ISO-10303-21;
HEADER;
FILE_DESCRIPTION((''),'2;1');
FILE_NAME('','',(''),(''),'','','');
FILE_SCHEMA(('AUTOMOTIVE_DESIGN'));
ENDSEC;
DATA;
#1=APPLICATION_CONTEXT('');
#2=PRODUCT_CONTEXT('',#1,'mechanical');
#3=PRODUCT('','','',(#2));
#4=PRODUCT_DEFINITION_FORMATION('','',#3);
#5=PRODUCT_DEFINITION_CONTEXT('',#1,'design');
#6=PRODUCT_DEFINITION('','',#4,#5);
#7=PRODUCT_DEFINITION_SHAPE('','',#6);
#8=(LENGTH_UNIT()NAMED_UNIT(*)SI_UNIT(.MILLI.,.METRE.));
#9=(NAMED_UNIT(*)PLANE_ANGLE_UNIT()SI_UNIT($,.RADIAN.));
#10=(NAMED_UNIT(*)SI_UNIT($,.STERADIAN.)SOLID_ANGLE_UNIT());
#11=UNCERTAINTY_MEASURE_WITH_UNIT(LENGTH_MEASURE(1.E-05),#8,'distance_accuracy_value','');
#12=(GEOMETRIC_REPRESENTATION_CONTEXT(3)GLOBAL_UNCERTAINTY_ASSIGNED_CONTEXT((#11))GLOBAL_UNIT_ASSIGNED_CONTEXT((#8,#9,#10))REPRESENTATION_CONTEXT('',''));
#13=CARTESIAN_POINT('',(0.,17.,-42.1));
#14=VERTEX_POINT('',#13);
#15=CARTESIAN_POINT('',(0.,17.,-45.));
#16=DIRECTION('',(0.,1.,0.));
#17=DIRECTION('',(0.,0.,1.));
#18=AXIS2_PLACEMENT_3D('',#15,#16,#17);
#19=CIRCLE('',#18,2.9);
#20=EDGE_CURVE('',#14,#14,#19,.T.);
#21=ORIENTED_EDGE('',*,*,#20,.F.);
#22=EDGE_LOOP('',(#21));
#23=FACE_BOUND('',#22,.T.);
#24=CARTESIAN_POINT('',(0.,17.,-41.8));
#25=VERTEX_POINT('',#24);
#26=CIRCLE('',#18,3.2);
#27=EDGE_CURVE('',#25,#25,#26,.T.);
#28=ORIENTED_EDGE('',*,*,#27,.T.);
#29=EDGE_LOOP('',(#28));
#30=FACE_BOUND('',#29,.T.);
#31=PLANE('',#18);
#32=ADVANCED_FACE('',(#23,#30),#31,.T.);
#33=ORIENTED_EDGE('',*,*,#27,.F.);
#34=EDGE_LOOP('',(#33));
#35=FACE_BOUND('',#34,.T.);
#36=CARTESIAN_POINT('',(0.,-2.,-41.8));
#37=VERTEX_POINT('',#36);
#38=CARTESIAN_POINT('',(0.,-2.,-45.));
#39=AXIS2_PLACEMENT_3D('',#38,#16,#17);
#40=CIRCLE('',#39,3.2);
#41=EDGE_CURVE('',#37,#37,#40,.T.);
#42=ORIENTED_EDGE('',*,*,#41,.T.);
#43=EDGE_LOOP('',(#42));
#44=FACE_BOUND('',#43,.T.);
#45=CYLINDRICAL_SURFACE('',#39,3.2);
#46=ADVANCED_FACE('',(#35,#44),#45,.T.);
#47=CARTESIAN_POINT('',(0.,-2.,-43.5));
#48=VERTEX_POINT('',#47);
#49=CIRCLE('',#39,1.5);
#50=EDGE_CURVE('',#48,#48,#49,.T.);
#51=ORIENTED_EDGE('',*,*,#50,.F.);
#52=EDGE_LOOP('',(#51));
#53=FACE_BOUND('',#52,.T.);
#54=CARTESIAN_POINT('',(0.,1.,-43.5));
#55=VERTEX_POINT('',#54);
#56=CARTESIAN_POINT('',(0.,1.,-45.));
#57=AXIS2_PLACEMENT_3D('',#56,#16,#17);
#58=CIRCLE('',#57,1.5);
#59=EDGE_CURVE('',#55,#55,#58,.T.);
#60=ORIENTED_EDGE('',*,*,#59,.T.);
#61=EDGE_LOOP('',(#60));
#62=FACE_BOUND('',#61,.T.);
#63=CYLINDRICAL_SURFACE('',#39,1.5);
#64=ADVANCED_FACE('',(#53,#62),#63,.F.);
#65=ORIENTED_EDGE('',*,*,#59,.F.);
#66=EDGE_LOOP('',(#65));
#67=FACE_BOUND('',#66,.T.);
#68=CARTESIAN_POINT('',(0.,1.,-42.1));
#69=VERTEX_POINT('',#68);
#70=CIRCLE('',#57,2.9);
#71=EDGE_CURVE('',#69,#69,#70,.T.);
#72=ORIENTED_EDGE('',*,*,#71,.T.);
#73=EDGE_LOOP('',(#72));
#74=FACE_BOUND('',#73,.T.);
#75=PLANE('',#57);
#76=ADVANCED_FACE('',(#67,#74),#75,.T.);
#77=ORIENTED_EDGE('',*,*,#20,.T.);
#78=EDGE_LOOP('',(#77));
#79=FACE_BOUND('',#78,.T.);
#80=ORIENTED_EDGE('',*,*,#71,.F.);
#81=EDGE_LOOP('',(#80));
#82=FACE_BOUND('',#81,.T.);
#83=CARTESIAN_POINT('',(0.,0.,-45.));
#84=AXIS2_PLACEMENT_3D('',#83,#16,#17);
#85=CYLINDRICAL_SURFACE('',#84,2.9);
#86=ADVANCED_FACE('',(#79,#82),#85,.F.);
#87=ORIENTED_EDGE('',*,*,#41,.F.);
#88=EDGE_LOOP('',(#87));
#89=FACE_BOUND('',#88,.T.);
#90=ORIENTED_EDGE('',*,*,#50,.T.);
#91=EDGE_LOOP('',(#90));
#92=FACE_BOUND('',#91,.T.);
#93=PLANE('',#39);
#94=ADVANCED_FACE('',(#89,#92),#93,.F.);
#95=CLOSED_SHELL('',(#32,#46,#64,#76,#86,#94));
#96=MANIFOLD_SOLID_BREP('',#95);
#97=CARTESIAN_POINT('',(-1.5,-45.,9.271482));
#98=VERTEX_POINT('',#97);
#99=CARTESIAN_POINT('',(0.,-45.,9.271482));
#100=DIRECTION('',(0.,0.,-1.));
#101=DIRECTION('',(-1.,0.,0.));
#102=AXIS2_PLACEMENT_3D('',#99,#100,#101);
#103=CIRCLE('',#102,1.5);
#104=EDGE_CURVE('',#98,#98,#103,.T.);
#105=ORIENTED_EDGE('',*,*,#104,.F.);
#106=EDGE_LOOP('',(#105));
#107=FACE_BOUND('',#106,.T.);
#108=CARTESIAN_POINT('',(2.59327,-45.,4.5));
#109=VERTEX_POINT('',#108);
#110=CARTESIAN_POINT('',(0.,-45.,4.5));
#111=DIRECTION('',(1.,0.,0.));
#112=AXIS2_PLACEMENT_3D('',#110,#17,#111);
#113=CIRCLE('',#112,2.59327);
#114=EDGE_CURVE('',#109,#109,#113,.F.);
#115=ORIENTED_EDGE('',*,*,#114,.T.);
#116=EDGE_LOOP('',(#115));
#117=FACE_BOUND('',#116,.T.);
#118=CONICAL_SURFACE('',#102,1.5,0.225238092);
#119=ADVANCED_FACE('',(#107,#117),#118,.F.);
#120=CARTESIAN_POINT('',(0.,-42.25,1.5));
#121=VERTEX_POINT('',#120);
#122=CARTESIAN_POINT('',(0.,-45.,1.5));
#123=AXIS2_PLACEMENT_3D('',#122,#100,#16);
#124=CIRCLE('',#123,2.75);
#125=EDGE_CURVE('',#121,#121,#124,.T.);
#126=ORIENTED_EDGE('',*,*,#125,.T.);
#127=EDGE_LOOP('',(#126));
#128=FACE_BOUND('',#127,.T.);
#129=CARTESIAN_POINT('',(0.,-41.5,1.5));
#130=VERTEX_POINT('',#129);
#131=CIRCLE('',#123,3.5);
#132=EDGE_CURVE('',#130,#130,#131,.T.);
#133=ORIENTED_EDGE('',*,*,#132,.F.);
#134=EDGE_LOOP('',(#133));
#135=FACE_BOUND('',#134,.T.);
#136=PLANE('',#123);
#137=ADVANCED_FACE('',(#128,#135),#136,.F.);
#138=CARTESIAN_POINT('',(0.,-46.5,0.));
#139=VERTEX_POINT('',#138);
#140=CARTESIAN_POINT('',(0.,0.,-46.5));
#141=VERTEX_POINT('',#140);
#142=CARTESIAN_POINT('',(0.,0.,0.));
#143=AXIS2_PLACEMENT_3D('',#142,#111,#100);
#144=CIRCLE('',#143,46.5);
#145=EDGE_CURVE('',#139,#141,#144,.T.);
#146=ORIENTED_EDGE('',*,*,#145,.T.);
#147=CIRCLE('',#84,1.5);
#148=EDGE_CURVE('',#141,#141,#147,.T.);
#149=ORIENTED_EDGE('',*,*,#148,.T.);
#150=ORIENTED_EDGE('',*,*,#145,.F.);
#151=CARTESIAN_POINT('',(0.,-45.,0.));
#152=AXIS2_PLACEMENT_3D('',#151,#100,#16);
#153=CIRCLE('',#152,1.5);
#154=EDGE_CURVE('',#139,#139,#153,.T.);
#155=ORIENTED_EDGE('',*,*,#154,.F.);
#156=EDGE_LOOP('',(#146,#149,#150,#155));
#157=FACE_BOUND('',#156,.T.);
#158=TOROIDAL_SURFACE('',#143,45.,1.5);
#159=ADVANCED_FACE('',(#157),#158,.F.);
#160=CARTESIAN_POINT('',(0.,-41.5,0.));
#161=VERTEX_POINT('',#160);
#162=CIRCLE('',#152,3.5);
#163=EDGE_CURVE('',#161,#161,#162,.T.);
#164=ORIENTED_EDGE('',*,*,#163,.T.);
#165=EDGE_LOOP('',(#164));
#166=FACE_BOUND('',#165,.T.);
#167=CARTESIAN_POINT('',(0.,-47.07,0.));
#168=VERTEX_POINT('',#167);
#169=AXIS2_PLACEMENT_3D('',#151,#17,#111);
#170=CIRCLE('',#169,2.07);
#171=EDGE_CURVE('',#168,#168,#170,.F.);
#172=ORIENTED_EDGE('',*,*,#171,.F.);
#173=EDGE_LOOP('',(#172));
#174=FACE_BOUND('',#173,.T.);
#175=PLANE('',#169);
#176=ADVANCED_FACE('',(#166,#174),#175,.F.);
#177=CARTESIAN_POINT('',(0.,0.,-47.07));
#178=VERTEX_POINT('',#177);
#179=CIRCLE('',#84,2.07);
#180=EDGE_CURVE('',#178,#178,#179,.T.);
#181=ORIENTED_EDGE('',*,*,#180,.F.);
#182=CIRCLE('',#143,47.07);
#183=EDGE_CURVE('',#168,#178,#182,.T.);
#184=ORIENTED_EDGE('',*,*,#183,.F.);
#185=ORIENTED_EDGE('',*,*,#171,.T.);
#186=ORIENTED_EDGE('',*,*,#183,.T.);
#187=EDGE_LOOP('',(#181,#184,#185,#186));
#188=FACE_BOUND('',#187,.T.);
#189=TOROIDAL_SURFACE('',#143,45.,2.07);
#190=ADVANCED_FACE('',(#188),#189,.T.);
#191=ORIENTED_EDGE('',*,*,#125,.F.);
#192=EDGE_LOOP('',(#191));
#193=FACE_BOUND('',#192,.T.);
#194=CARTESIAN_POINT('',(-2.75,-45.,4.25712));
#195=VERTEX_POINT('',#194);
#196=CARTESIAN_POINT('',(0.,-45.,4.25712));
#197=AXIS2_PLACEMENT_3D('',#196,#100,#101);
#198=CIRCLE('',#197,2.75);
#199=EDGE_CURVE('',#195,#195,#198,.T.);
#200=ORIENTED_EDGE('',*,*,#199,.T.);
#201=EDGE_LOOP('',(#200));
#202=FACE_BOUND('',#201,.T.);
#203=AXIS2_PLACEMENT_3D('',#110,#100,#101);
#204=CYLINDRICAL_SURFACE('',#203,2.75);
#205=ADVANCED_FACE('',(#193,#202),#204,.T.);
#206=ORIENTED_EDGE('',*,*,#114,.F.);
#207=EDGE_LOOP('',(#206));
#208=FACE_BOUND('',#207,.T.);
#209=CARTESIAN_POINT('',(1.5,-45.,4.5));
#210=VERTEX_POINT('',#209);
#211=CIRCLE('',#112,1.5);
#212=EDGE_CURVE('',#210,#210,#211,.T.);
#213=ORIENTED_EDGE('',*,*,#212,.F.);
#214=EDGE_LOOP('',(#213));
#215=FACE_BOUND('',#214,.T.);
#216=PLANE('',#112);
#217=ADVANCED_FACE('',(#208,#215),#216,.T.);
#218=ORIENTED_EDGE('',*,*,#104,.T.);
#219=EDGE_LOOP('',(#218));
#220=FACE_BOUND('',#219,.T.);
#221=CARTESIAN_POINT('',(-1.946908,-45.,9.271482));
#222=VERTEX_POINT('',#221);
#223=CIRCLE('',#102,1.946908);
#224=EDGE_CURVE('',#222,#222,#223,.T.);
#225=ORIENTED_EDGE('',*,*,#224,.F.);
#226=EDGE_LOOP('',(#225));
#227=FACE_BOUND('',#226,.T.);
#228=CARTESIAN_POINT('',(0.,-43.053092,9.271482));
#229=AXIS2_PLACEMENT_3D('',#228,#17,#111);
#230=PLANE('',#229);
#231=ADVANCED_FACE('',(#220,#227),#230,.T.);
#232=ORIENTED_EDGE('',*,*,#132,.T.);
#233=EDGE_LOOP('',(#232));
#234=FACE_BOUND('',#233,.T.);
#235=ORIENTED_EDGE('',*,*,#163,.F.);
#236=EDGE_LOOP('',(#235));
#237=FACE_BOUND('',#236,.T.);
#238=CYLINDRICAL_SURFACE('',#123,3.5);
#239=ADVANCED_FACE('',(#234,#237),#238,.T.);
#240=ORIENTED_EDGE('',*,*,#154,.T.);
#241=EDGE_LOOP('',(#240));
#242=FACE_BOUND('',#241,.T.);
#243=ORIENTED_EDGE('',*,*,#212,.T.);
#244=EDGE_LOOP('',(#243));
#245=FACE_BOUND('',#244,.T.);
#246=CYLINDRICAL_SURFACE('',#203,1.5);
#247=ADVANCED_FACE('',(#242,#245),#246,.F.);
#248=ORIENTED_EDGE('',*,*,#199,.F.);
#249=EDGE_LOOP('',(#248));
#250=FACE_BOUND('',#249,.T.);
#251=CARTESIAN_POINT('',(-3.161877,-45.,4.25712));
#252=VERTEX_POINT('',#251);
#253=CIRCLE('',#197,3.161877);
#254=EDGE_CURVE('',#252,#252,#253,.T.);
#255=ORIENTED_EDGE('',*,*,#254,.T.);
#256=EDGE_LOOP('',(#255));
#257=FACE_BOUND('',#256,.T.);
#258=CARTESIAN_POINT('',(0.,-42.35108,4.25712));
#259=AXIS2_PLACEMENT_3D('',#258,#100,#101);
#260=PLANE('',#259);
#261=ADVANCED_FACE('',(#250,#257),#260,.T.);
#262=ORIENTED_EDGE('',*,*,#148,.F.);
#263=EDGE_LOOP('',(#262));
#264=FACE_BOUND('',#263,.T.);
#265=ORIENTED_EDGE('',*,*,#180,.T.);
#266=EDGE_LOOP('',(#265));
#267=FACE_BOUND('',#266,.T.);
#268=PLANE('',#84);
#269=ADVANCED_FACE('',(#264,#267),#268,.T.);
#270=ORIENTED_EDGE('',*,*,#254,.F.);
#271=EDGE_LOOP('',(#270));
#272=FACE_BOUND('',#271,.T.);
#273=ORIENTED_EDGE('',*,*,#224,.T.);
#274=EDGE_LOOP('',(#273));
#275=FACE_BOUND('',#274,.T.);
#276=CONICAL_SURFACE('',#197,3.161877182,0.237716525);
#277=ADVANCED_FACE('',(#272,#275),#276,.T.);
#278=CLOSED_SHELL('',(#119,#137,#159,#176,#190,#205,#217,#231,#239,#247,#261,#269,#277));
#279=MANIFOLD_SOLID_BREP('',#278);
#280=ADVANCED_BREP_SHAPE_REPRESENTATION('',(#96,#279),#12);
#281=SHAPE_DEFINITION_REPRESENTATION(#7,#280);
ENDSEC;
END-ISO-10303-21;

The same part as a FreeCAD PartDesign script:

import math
import FreeCAD as App
import Part
import Sketcher
from FreeCAD import Vector
Q = App.Units.Quantity


def add_polygon(sketch, points):
    """Adds a closed chain of lines whose ends are joined by coincident constraints."""
    first, n = sketch.GeometryCount, len(points)
    for a, b in zip(points, points[1:] + points[:1]):
        sketch.addGeometry(Part.LineSegment(App.Vector(*a, 0), App.Vector(*b, 0)), False)
    for i in range(n):
        sketch.addConstraint(Sketcher.Constraint("Coincident", first + i, 2, first + (i + 1) % n, 1))

doc = App.newDocument("Part")
body = doc.addObject("PartDesign::Body", "Body")

# Sketch on XY plane
sketch1 = body.newObject("Sketcher::SketchObject", "Sketch")
sketch1.AttachmentSupport = (doc.getObject("XY_Plane"), [""])
sketch1.MapMode = "FlatFace"
sketch1.addGeometry(Part.Circle(Vector(0, -45, 0), Vector(0, 0, 1), 2.1), False)
sketch1.addGeometry(Part.Circle(Vector(0, -45, 0), Vector(0, 0, 1), 1.5), False)
sketch1.addConstraint(Sketcher.Constraint("Coincident", 1, 3, 0, 3))
sketch1.addConstraint(Sketcher.Constraint("PointOnObject", 0, 3, -2))
sketch1.addConstraint(Sketcher.Constraint("Diameter", 1, Q("3 mm")))
sketch1.addConstraint(Sketcher.Constraint("Diameter", 0, Q("4.14 mm")))
sketch1.addConstraint(Sketcher.Constraint("DistanceY", 0, 3, -1, 1, Q("45 mm")))

# Sketch on YZ plane
sketch2 = body.newObject("Sketcher::SketchObject", "Sketch001")
sketch2.AttachmentSupport = (doc.getObject("YZ_Plane"), [""])
sketch2.MapMode = "FlatFace"
sketch2.addGeometry(Part.ArcOfCircle(Part.Circle(Vector(0, 0, 0), Vector(0, 0, 1), 45), math.radians(-180), math.radians(-90)), False)
sketch2.addConstraint(Sketcher.Constraint("Coincident", 0, 3, -1, 1))
sketch2.addConstraint(Sketcher.Constraint("PointOnObject", 0, 1, -1))
sketch2.addConstraint(Sketcher.Constraint("PointOnObject", 0, 2, -2))
sketch2.addConstraint(Sketcher.Constraint("Radius", 0, Q("45 mm")))
doc.recompute()

additivepipe = body.newObject("PartDesign::AdditivePipe", "AdditivePipe")
additivepipe.Profile = sketch1
additivepipe.Spine = (sketch2, ["Edge1"])

# Sketch on XY plane
sketch3 = body.newObject("Sketcher::SketchObject", "Sketch002")
sketch3.AttachmentSupport = (doc.getObject("XY_Plane"), [""])
sketch3.MapMode = "FlatFace"
sketch3.addGeometry(Part.Circle(Vector(0, -45, 0), Vector(0, 0, 1), 2.8), False)
sketch3.addGeometry(Part.Circle(Vector(0, -45, 0), Vector(0, 0, 1), 1.5), False)
sketch3.addConstraint(Sketcher.Constraint("Coincident", 1, 3, 0, 3))
sketch3.addConstraint(Sketcher.Constraint("PointOnObject", 0, 3, -2))
sketch3.addConstraint(Sketcher.Constraint("Diameter", 1, Q("3 mm")))
sketch3.addConstraint(Sketcher.Constraint("Diameter", 0, Q("5.5 mm")))
sketch3.addConstraint(Sketcher.Constraint("DistanceY", 0, 3, -1, 1, Q("45 mm")))
pad1 = body.newObject("PartDesign::Pad", "Pad")
pad1.Profile = sketch3
pad1.Length = 4.5

# Sketch on XY plane
sketch4 = body.newObject("Sketcher::SketchObject", "Sketch003")
sketch4.AttachmentSupport = (doc.getObject("XY_Plane"), [""])
sketch4.MapMode = "FlatFace"
sketch4.addGeometry(Part.Circle(Vector(0, -45, 0), Vector(0, 0, 1), 3.5), False)
sketch4.addGeometry(Part.Circle(Vector(0, -45, 0), Vector(0, 0, 1), 2.5), False)
sketch4.addConstraint(Sketcher.Constraint("Coincident", 1, 3, 0, 3))
sketch4.addConstraint(Sketcher.Constraint("PointOnObject", 0, 3, -2))
sketch4.addConstraint(Sketcher.Constraint("Diameter", 0, Q("7 mm")))
sketch4.addConstraint(Sketcher.Constraint("Diameter", 1, Q("5 mm")))
sketch4.addConstraint(Sketcher.Constraint("DistanceY", 0, 3, -1, 1, Q("45 mm")))
pad2 = body.newObject("PartDesign::Pad", "Pad001")
pad2.Profile = sketch4
pad2.Length = 1.5

# Sketch on YZ plane
sketch5 = body.newObject("Sketcher::SketchObject", "Sketch004")
sketch5.AttachmentSupport = (doc.getObject("YZ_Plane"), [""])
sketch5.MapMode = "FlatFace"
add_polygon(sketch5, [(-42.35, 4.26), (-41.84, 4.26), (-43.05, 9.27), (-43.5, 9.27)])  # lines 0-3
sketch5.addGeometry(Part.LineSegment(Vector(-45, 4.26, 0), Vector(-45, 9.27, 0)), True)  # axis
sketch5.addConstraint(Sketcher.Constraint("Horizontal", 0))
sketch5.addConstraint(Sketcher.Constraint("Horizontal", 2))
sketch5.addConstraint(Sketcher.Constraint("Vertical", 4))
sketch5.addConstraint(Sketcher.Constraint("Horizontal", 3, 2, 4, 1))
sketch5.addConstraint(Sketcher.Constraint("Horizontal", 2, 2, 4, 2))
sketch5.addConstraint(Sketcher.Constraint("DistanceX", 4, 1, -1, 1, Q("45 mm")))
sketch5.addConstraint(Sketcher.Constraint("DistanceX", 2, 2, -1, 1, Q("43.5 mm")))
sketch5.addConstraint(Sketcher.Constraint("Distance", 3, Q("5.144302 mm")))
sketch5.addConstraint(Sketcher.Constraint("DistanceX", 2, 2, 2, 1, Q("0.446908 mm")))
sketch5.addConstraint(Sketcher.Constraint("DistanceY", 4, 1, 4, 2, Q("5.014362 mm")))
sketch5.addConstraint(Sketcher.Constraint("DistanceX", 0, 1, 0, 2, Q("0.512957 mm")))
sketch5.addConstraint(Sketcher.Constraint("DistanceY", -1, 1, 0, 2, Q("4.25712 mm")))
revolution = body.newObject("PartDesign::Revolution", "Revolution")
revolution.Profile = sketch5
revolution.ReferenceAxis = (sketch5, ["Axis0"])
revolution.Angle = 360
body2 = doc.addObject("PartDesign::Body", "Body001")

# Sketch on XZ plane
sketch6 = body2.newObject("Sketcher::SketchObject", "Sketch005")
sketch6.AttachmentSupport = (doc.getObject("XZ_Plane001"), [""])
sketch6.MapMode = "FlatFace"
sketch6.addGeometry(Part.Circle(Vector(0, -45, 0), Vector(0, 0, 1), 3.2), False)
sketch6.addGeometry(Part.Circle(Vector(0, -45, 0), Vector(0, 0, 1), 1.5), False)
sketch6.addConstraint(Sketcher.Constraint("Coincident", 1, 3, 0, 3))
sketch6.addConstraint(Sketcher.Constraint("PointOnObject", 0, 3, -2))
sketch6.addConstraint(Sketcher.Constraint("Diameter", 1, Q("3 mm")))
sketch6.addConstraint(Sketcher.Constraint("Diameter", 0, Q("6.4 mm")))
sketch6.addConstraint(Sketcher.Constraint("DistanceY", 0, 3, -1, 1, Q("45 mm")))
pad3 = body2.newObject("PartDesign::Pad", "Pad002")
pad3.Profile = sketch6
pad3.Type = "TwoLengths"
pad3.Length = 1
pad3.Length2 = 2
pad3.Reversed = True

# Sketch on XZ plane
sketch7 = body2.newObject("Sketcher::SketchObject", "Sketch006")
sketch7.AttachmentSupport = (doc.getObject("XZ_Plane001"), [""])
sketch7.MapMode = "FlatFace"
sketch7.AttachmentOffset = App.Placement(Vector(0, 0, -1), App.Rotation())
sketch7.addGeometry(Part.Circle(Vector(0, -45, 0), Vector(0, 0, 1), 3.2), False)
sketch7.addGeometry(Part.Circle(Vector(0, -45, 0), Vector(0, 0, 1), 2.9), False)
sketch7.addConstraint(Sketcher.Constraint("Coincident", 1, 3, 0, 3))
sketch7.addConstraint(Sketcher.Constraint("PointOnObject", 0, 3, -2))
sketch7.addConstraint(Sketcher.Constraint("Diameter", 0, Q("6.4 mm")))
sketch7.addConstraint(Sketcher.Constraint("Diameter", 1, Q("5.8 mm")))
sketch7.addConstraint(Sketcher.Constraint("DistanceY", 0, 3, -1, 1, Q("45 mm")))
pad4 = body2.newObject("PartDesign::Pad", "Pad003")
pad4.Profile = sketch7
pad4.Type = "TwoLengths"
pad4.Length = 16
pad4.Length2 = 1
pad4.Reversed = True

doc.recompute()
